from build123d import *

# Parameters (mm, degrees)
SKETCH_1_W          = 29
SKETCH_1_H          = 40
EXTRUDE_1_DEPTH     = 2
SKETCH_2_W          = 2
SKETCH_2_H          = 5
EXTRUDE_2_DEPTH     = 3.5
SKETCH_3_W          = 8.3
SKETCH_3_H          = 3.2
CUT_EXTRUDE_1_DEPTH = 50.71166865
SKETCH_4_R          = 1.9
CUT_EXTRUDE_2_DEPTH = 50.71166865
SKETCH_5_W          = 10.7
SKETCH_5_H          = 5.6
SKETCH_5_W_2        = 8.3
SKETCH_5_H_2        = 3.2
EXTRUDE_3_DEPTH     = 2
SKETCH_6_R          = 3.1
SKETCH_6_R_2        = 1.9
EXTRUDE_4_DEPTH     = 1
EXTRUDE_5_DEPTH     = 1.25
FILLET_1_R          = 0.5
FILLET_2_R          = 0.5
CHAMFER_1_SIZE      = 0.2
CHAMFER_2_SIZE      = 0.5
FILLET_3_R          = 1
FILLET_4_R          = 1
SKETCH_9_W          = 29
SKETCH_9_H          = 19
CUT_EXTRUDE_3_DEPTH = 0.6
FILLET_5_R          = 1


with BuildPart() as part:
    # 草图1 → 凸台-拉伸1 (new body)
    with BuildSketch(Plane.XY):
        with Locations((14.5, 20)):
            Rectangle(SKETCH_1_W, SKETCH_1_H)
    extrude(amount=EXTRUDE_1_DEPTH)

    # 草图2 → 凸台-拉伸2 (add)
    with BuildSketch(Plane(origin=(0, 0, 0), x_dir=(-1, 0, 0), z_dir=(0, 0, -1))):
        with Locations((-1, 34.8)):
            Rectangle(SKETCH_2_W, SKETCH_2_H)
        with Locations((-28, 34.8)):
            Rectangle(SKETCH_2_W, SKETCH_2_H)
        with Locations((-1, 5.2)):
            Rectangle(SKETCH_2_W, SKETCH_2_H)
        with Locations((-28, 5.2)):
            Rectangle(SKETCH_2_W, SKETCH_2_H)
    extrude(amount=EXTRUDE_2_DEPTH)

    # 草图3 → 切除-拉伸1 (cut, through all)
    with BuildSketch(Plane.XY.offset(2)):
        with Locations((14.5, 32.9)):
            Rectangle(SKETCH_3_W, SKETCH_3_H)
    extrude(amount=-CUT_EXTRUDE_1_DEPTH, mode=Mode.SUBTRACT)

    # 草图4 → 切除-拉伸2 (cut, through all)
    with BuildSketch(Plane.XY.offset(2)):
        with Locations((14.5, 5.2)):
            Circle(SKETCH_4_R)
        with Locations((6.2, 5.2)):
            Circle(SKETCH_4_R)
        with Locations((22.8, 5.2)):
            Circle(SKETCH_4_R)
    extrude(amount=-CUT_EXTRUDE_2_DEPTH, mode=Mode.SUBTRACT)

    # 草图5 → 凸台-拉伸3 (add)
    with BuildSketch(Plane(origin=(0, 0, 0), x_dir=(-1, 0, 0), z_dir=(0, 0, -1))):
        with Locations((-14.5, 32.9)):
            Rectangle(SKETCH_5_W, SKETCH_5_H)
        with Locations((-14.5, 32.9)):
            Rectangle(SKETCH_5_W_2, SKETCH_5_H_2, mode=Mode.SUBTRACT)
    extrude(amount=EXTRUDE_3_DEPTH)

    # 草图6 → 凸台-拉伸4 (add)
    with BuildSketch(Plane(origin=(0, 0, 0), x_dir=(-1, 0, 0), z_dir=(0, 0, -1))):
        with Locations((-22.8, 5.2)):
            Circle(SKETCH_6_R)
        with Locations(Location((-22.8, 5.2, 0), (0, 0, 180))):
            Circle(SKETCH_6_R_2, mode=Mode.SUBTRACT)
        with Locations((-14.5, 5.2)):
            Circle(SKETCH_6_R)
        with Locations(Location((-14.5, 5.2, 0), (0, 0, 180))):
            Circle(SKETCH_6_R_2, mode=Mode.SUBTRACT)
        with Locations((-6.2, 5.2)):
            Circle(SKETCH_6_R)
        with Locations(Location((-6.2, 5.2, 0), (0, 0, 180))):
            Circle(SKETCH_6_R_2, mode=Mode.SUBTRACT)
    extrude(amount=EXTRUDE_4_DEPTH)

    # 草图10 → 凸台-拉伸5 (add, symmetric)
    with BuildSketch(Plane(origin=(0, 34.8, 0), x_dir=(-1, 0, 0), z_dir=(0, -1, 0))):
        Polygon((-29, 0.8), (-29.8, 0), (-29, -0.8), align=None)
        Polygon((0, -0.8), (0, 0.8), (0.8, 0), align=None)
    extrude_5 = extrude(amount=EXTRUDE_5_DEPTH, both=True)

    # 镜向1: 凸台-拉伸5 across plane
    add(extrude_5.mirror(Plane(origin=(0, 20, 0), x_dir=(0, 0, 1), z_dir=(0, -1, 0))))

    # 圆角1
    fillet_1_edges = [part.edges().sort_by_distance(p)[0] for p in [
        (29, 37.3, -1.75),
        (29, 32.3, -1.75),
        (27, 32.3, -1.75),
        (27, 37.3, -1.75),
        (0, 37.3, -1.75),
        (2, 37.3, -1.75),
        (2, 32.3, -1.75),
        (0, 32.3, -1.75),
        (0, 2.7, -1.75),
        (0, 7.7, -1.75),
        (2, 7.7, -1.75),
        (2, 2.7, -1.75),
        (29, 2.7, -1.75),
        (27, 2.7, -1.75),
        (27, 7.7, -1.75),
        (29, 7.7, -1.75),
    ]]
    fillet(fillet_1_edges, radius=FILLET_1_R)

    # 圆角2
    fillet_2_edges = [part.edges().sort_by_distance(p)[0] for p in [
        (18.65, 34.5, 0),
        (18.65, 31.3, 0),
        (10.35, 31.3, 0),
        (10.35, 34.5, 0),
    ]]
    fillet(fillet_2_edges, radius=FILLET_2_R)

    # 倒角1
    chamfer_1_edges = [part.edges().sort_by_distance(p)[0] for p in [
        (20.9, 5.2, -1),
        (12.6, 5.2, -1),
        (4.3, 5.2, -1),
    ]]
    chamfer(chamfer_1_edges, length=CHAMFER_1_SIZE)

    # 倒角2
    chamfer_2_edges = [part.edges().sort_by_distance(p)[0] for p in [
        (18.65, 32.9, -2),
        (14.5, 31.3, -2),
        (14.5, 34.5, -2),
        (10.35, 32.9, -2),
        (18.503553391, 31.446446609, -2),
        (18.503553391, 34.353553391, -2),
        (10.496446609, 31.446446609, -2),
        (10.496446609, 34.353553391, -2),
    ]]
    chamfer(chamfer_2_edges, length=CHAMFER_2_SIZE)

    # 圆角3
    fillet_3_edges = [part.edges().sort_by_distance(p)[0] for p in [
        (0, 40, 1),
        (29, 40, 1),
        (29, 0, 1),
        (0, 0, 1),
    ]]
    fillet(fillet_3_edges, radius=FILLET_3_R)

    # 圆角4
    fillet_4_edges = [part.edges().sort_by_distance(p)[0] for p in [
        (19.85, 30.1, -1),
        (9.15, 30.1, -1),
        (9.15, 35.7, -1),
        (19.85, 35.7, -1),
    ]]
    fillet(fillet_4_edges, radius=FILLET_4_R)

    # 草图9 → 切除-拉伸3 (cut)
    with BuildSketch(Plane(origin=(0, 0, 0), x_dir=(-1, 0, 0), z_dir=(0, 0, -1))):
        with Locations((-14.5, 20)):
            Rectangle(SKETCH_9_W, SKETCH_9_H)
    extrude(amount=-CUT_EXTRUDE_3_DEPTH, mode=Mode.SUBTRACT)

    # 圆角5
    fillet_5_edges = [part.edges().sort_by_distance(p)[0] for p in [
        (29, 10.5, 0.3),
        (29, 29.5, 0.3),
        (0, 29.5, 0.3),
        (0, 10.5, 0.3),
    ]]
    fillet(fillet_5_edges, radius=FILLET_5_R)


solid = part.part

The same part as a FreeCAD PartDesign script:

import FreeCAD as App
import Part
import Sketcher
from FreeCAD import Vector
Q = App.Units.Quantity


def edges_at(feature, points):
    """Names of the edges that pass closest to the given points."""
    edges = feature.Shape.Edges
    near = lambda p: min(range(len(edges)), key=lambda i: edges[i].distToShape(Part.Vertex(*p))[0])
    return sorted({f"Edge{near(p) + 1}" for p in points})


def add_polygon(sketch, points):
    """Adds a closed chain of lines whose ends are joined by coincident constraints."""
    first, n = sketch.GeometryCount, len(points)
    for a, b in zip(points, points[1:] + points[:1]):
        sketch.addGeometry(Part.LineSegment(App.Vector(*a, 0), App.Vector(*b, 0)), False)
    for i in range(n):
        sketch.addConstraint(Sketcher.Constraint("Coincident", first + i, 2, first + (i + 1) % n, 1))

doc = App.newDocument("Part")
body = doc.addObject("PartDesign::Body", "Body")

sketch1 = body.newObject("Sketcher::SketchObject", "Sketch")
sketch1.AttachmentSupport = (doc.getObject("XY_Plane"), [""])
sketch1.MapMode = "FlatFace"
add_polygon(sketch1, [(0, 40), (0, 0), (29, 0), (29, 40)])
sketch1.addConstraint([
    Sketcher.Constraint("Vertical", 0),
    Sketcher.Constraint("Horizontal", 1),
    Sketcher.Constraint("Vertical", 2),
    Sketcher.Constraint("Horizontal", 3),
    Sketcher.Constraint("Coincident", 0, 2, -1, 1),
    Sketcher.Constraint("DistanceX", 1, 1, 1, 2, Q("29 mm")),
    Sketcher.Constraint("DistanceY", 0, 2, 0, 1, Q("40 mm")),
])
pad1 = body.newObject("PartDesign::Pad", "Pad")
pad1.Profile = sketch1
pad1.Length = 2

sketch2 = body.newObject("Sketcher::SketchObject", "Sketch001")
sketch2.AttachmentSupport = (doc.getObject("XY_Plane"), [""])
sketch2.MapMode = "FlatFace"
add_polygon(sketch2, [(2, 37.3), (2, 32.3), (0, 32.3), (0, 37.3)])
add_polygon(sketch2, [(29, 37.3), (29, 32.3), (27, 32.3), (27, 37.3)])
add_polygon(sketch2, [(2, 7.7), (2, 2.7), (0, 2.7), (0, 7.7)])
add_polygon(sketch2, [(29, 7.7), (29, 2.7), (27, 2.7), (27, 7.7)])
sketch2.addConstraint([
    Sketcher.Constraint("Vertical", 0),
    Sketcher.Constraint("Horizontal", 1),
    Sketcher.Constraint("Vertical", 2),
    Sketcher.Constraint("Horizontal", 3),
    Sketcher.Constraint("Vertical", 4),
    Sketcher.Constraint("Horizontal", 5),
    Sketcher.Constraint("Vertical", 6),
    Sketcher.Constraint("Horizontal", 7),
    Sketcher.Constraint("Vertical", 8),
    Sketcher.Constraint("Horizontal", 9),
    Sketcher.Constraint("Vertical", 10),
    Sketcher.Constraint("Horizontal", 11),
    Sketcher.Constraint("Vertical", 12),
    Sketcher.Constraint("Horizontal", 13),
    Sketcher.Constraint("Vertical", 14),
    Sketcher.Constraint("Horizontal", 15),
    Sketcher.Constraint("PointOnObject", 1, 2, -2),
    Sketcher.Constraint("PointOnObject", 9, 2, -2),
    Sketcher.Constraint("Horizontal", 1, 2, 4, 2),
    Sketcher.Constraint("Horizontal", 3, 2, 6, 2),
    Sketcher.Constraint("Horizontal", 9, 2, 12, 2),
    Sketcher.Constraint("Horizontal", 11, 2, 14, 2),
    Sketcher.Constraint("Vertical", 3, 2, 8, 2),
    Sketcher.Constraint("Vertical", 7, 2, 12, 2),
    Sketcher.Constraint("Vertical", 6, 2, 13, 2),
    Sketcher.Constraint("Equal", 3, 5),
    Sketcher.Constraint("Equal", 6, 8),
    Sketcher.Constraint("DistanceX", 1, 2, 1, 1, Q("2 mm")),
    Sketcher.Constraint("DistanceY", 0, 2, 0, 1, Q("5 mm")),
    Sketcher.Constraint("DistanceX", -1, 1, 4, 2, Q("29 mm")),
    Sketcher.Constraint("DistanceY", -1, 1, 0, 2, Q("32.3 mm")),
    Sketcher.Constraint("DistanceY", -1, 1, 8, 2, Q("2.7 mm")),
])
pad2 = body.newObject("PartDesign::Pad", "Pad001")
pad2.Profile = sketch2
pad2.Length = 3.5
pad2.Reversed = True

sketch3 = body.newObject("Sketcher::SketchObject", "Sketch002")
sketch3.AttachmentSupport = (doc.getObject("XY_Plane"), [""])
sketch3.MapMode = "FlatFace"
sketch3.AttachmentOffset = App.Placement(Vector(0, 0, 2), App.Rotation())
add_polygon(sketch3, [(10.3, 34.5), (10.3, 31.3), (18.6, 31.3), (18.6, 34.5)])
sketch3.addConstraint([
    Sketcher.Constraint("Vertical", 0),
    Sketcher.Constraint("Horizontal", 1),
    Sketcher.Constraint("Vertical", 2),
    Sketcher.Constraint("Horizontal", 3),
    Sketcher.Constraint("DistanceX", 1, 1, 1, 2, Q("8.3 mm")),
    Sketcher.Constraint("DistanceY", 0, 2, 0, 1, Q("3.2 mm")),
    Sketcher.Constraint("DistanceY", -1, 1, 0, 2, Q("31.3 mm")),
    Sketcher.Constraint("DistanceX", -1, 1, 0, 2, Q("10.35 mm")),
])
pocket1 = body.newObject("PartDesign::Pocket", "Pocket")
pocket1.Profile = sketch3
pocket1.Type = "ThroughAll"

sketch4 = body.newObject("Sketcher::SketchObject", "Sketch003")
sketch4.AttachmentSupport = (doc.getObject("XY_Plane"), [""])
sketch4.MapMode = "FlatFace"
sketch4.AttachmentOffset = App.Placement(Vector(0, 0, 2), App.Rotation())
sketch4.addGeometry([
    Part.Circle(Vector(14.5, 5.2, 0), Vector(0, 0, 1), 1.9),
    Part.Circle(Vector(6.2, 5.2, 0), Vector(0, 0, 1), 1.9),
    Part.Circle(Vector(22.8, 5.2, 0), Vector(0, 0, 1), 1.9),
], False)
sketch4.addConstraint([
    Sketcher.Constraint("Equal", 0, 1),
    Sketcher.Constraint("Equal", 1, 2),
    Sketcher.Constraint("Horizontal", 0, 3, 1, 3),
    Sketcher.Constraint("Horizontal", 1, 3, 2, 3),
    Sketcher.Constraint("Diameter", 0, Q("3.8 mm")),
    Sketcher.Constraint("DistanceX", -1, 1, 0, 3, Q("14.5 mm")),
    Sketcher.Constraint("DistanceY", -1, 1, 0, 3, Q("5.2 mm")),
    Sketcher.Constraint("DistanceX", -1, 1, 1, 3, Q("6.2 mm")),
    Sketcher.Constraint("DistanceX", -1, 1, 2, 3, Q("22.8 mm")),
])
pocket2 = body.newObject("PartDesign::Pocket", "Pocket001")
pocket2.Profile = sketch4
pocket2.Type = "ThroughAll"

sketch5 = body.newObject("Sketcher::SketchObject", "Sketch004")
sketch5.AttachmentSupport = (doc.getObject("XY_Plane"), [""])
sketch5.MapMode = "FlatFace"
add_polygon(sketch5, [(19.9, 35.7), (19.9, 30.1), (9.2, 30.1), (9.2, 35.7)])
add_polygon(sketch5, [(10.3, 31.3), (18.6, 31.3), (18.6, 34.5), (10.3, 34.5)])
sketch5.addConstraint([
    Sketcher.Constraint("Vertical", 0),
    Sketcher.Constraint("Horizontal", 1),
    Sketcher.Constraint("Vertical", 2),
    Sketcher.Constraint("Horizontal", 3),
    Sketcher.Constraint("Horizontal", 4),
    Sketcher.Constraint("Vertical", 5),
    Sketcher.Constraint("Horizontal", 6),
    Sketcher.Constraint("Vertical", 7),
    Sketcher.Constraint("DistanceX", 1, 2, 1, 1, Q("10.7 mm")),
    Sketcher.Constraint("DistanceX", 4, 1, 4, 2, Q("8.3 mm")),
    Sketcher.Constraint("DistanceY", 0, 2, 0, 1, Q("5.6 mm")),
    Sketcher.Constraint("DistanceY", 5, 1, 5, 2, Q("3.2 mm")),
    Sketcher.Constraint("DistanceY", -1, 1, 0, 2, Q("30.1 mm")),
    Sketcher.Constraint("DistanceY", -1, 1, 4, 2, Q("31.3 mm")),
    Sketcher.Constraint("DistanceX", 4, 2, 0, 2, Q("1.2 mm")),
    Sketcher.Constraint("DistanceX", -1, 1, 0, 2, Q("19.85 mm")),
])
pad3 = body.newObject("PartDesign::Pad", "Pad002")
pad3.Profile = sketch5
pad3.Length = 2
pad3.Reversed = True

sketch6 = body.newObject("Sketcher::SketchObject", "Sketch005")
sketch6.AttachmentSupport = (doc.getObject("XY_Plane"), [""])
sketch6.MapMode = "FlatFace"
sketch6.addGeometry([
    Part.Circle(Vector(22.8, 5.2, 0), Vector(0, 0, 1), 3.1),
    Part.Circle(Vector(22.8, 5.2, 0), Vector(0, 0, 1), 1.9),
    Part.Circle(Vector(14.5, 5.2, 0), Vector(0, 0, 1), 3.1),
    Part.Circle(Vector(14.5, 5.2, 0), Vector(0, 0, 1), 1.9),
    Part.Circle(Vector(6.2, 5.2, 0), Vector(0, 0, 1), 3.1),
    Part.Circle(Vector(6.2, 5.2, 0), Vector(0, 0, 1), 1.9),
], False)
sketch6.addConstraint([
    Sketcher.Constraint("Coincident", 1, 3, 0, 3),
    Sketcher.Constraint("Coincident", 3, 3, 2, 3),
    Sketcher.Constraint("Coincident", 5, 3, 4, 3),
    Sketcher.Constraint("Equal", 0, 2),
    Sketcher.Constraint("Equal", 1, 3),
    Sketcher.Constraint("Equal", 2, 4),
    Sketcher.Constraint("Equal", 3, 5),
    Sketcher.Constraint("Horizontal", 1, 3, 2, 3),
    Sketcher.Constraint("Horizontal", 3, 3, 4, 3),
    Sketcher.Constraint("Diameter", 0, Q("6.2 mm")),
    Sketcher.Constraint("Diameter", 1, Q("3.8 mm")),
    Sketcher.Constraint("DistanceX", -1, 1, 0, 3, Q("22.8 mm")),
    Sketcher.Constraint("DistanceY", -1, 1, 0, 3, Q("5.2 mm")),
    Sketcher.Constraint("DistanceX", -1, 1, 2, 3, Q("14.5 mm")),
    Sketcher.Constraint("DistanceX", -1, 1, 4, 3, Q("6.2 mm")),
])
pad4 = body.newObject("PartDesign::Pad", "Pad003")
pad4.Profile = sketch6
pad4.Length = 1
pad4.Reversed = True

sketch7 = body.newObject("Sketcher::SketchObject", "Sketch006")
sketch7.AttachmentSupport = (doc.getObject("XZ_Plane"), [""])
sketch7.MapMode = "FlatFace"
sketch7.AttachmentOffset = App.Placement(Vector(0, 0, -34.8), App.Rotation())
add_polygon(sketch7, [(29, -0.8), (29.8, 0), (29, 0.8)])
add_polygon(sketch7, [(0, -0.8), (0, 0.8), (-0.8, 0)])
sketch7.addConstraint([
    Sketcher.Constraint("Vertical", 2),
    Sketcher.Constraint("Vertical", 3),
    Sketcher.Constraint("Symmetric", 3, 2, 5, 2, -1, 1),
    Sketcher.Constraint("PointOnObject", 0, 2, -1),
    Sketcher.Constraint("PointOnObject", 4, 2, -1),
    Sketcher.Constraint("Perpendicular", 0, 1),
    Sketcher.Constraint("Perpendicular", 1, 4),
    Sketcher.Constraint("Perpendicular", 4, 5),
    Sketcher.Constraint("Horizontal", 1, 2, 3, 2),
    Sketcher.Constraint("DistanceY", 2, 2, 2, 1, Q("1.6 mm")),
    Sketcher.Constraint("DistanceX", -1, 1, 1, 2, Q("29 mm")),
])
pad5 = body.newObject("PartDesign::Pad", "Pad004")
pad5.Profile = sketch7
pad5.Length = 2.5
pad5.Midplane = True
doc.recompute()

datumplane = body.newObject("PartDesign::Plane", "DatumPlane")
datumplane.AttachmentSupport = (doc.getObject("XZ_Plane"), [""])
datumplane.MapMode = "FlatFace"
datumplane.AttachmentOffset = App.Placement(Vector(0, 0, -20), App.Rotation())
mirrored = body.newObject("PartDesign::Mirrored", "Mirrored")
mirrored.Originals = [pad5]
mirrored.MirrorPlane = (datumplane, [""])
body.Tip = mirrored
doc.recompute()

fillet = body.newObject("PartDesign::Fillet", "Fillet")
fillet.Base = (mirrored, edges_at(mirrored, [
    (29, 37.3, -1.75),
    (29, 32.3, -1.75),
    (27, 32.3, -1.75),
    (27, 37.3, -1.75),
    (0, 37.3, -1.75),
    (2, 37.3, -1.75),
    (2, 32.3, -1.75),
    (0, 32.3, -1.75),
    (0, 2.7, -1.75),
    (0, 7.7, -1.75),
    (2, 7.7, -1.75),
    (2, 2.7, -1.75),
    (29, 2.7, -1.75),
    (27, 2.7, -1.75),
    (27, 7.7, -1.75),
    (29, 7.7, -1.75),
]))
fillet.Radius = 0.5
doc.recompute()

fillet2 = body.newObject("PartDesign::Fillet", "Fillet001")
fillet2.Base = (fillet, edges_at(fillet, [
    (18.65, 34.5, 0),
    (18.65, 31.3, 0),
    (10.35, 31.3, 0),
    (10.35, 34.5, 0),
]))
fillet2.Radius = 0.5
doc.recompute()

chamfer = body.newObject("PartDesign::Chamfer", "Chamfer")
chamfer.Base = (fillet2, edges_at(fillet2, [(20.9, 5.2, -1), (12.6, 5.2, -1), (4.3, 5.2, -1)]))
chamfer.Size = 0.2
doc.recompute()

chamfer2 = body.newObject("PartDesign::Chamfer", "Chamfer001")
chamfer2.Base = (chamfer, edges_at(chamfer, [
    (18.65, 32.9, -2),
    (14.5, 31.3, -2),
    (14.5, 34.5, -2),
    (10.35, 32.9, -2),
    (18.504, 31.446, -2),
    (18.504, 34.354, -2),
    (10.496, 31.446, -2),
    (10.496, 34.354, -2),
]))
chamfer2.Size = 0.5
doc.recompute()

fillet3 = body.newObject("PartDesign::Fillet", "Fillet002")
fillet3.Base = (chamfer2, edges_at(chamfer2, [
    (0, 40, 1),
    (29, 40, 1),
    (29, 0, 1),
    (0, 0, 1),
]))
fillet3.Radius = 1
doc.recompute()

fillet4 = body.newObject("PartDesign::Fillet", "Fillet003")
fillet4.Base = (fillet3, edges_at(fillet3, [
    (19.85, 30.1, -1),
    (9.15, 30.1, -1),
    (9.15, 35.7, -1),
    (19.85, 35.7, -1),
]))
fillet4.Radius = 1

sketch8 = body.newObject("Sketcher::SketchObject", "Sketch007")
sketch8.AttachmentSupport = (doc.getObject("XY_Plane"), [""])
sketch8.MapMode = "FlatFace"
add_polygon(sketch8, [(29, 30), (29, 10), (0, 10), (0, 30)])
sketch8.addConstraint([
    Sketcher.Constraint("Vertical", 0),
    Sketcher.Constraint("Horizontal", 1),
    Sketcher.Constraint("Vertical", 2),
    Sketcher.Constraint("Horizontal", 3),
    Sketcher.Constraint("PointOnObject", 1, 2, -2),
    Sketcher.Constraint("DistanceX", 1, 2, 1, 1, Q("29 mm")),
    Sketcher.Constraint("DistanceY", 0, 2, 0, 1, Q("19 mm")),
    Sketcher.Constraint("DistanceY", -1, 1, 0, 2, Q("10.5 mm")),
])
pocket3 = body.newObject("PartDesign::Pocket", "Pocket002")
pocket3.Profile = sketch8
pocket3.Length = 0.6
pocket3.Reversed = True
doc.recompute()

fillet5 = body.newObject("PartDesign::Fillet", "Fillet004")
fillet5.Base = (pocket3, edges_at(pocket3, [
    (29, 10.5, 0.3),
    (29, 29.5, 0.3),
    (0, 29.5, 0.3),
    (0, 10.5, 0.3),
]))
fillet5.Radius = 1

doc.recompute()
